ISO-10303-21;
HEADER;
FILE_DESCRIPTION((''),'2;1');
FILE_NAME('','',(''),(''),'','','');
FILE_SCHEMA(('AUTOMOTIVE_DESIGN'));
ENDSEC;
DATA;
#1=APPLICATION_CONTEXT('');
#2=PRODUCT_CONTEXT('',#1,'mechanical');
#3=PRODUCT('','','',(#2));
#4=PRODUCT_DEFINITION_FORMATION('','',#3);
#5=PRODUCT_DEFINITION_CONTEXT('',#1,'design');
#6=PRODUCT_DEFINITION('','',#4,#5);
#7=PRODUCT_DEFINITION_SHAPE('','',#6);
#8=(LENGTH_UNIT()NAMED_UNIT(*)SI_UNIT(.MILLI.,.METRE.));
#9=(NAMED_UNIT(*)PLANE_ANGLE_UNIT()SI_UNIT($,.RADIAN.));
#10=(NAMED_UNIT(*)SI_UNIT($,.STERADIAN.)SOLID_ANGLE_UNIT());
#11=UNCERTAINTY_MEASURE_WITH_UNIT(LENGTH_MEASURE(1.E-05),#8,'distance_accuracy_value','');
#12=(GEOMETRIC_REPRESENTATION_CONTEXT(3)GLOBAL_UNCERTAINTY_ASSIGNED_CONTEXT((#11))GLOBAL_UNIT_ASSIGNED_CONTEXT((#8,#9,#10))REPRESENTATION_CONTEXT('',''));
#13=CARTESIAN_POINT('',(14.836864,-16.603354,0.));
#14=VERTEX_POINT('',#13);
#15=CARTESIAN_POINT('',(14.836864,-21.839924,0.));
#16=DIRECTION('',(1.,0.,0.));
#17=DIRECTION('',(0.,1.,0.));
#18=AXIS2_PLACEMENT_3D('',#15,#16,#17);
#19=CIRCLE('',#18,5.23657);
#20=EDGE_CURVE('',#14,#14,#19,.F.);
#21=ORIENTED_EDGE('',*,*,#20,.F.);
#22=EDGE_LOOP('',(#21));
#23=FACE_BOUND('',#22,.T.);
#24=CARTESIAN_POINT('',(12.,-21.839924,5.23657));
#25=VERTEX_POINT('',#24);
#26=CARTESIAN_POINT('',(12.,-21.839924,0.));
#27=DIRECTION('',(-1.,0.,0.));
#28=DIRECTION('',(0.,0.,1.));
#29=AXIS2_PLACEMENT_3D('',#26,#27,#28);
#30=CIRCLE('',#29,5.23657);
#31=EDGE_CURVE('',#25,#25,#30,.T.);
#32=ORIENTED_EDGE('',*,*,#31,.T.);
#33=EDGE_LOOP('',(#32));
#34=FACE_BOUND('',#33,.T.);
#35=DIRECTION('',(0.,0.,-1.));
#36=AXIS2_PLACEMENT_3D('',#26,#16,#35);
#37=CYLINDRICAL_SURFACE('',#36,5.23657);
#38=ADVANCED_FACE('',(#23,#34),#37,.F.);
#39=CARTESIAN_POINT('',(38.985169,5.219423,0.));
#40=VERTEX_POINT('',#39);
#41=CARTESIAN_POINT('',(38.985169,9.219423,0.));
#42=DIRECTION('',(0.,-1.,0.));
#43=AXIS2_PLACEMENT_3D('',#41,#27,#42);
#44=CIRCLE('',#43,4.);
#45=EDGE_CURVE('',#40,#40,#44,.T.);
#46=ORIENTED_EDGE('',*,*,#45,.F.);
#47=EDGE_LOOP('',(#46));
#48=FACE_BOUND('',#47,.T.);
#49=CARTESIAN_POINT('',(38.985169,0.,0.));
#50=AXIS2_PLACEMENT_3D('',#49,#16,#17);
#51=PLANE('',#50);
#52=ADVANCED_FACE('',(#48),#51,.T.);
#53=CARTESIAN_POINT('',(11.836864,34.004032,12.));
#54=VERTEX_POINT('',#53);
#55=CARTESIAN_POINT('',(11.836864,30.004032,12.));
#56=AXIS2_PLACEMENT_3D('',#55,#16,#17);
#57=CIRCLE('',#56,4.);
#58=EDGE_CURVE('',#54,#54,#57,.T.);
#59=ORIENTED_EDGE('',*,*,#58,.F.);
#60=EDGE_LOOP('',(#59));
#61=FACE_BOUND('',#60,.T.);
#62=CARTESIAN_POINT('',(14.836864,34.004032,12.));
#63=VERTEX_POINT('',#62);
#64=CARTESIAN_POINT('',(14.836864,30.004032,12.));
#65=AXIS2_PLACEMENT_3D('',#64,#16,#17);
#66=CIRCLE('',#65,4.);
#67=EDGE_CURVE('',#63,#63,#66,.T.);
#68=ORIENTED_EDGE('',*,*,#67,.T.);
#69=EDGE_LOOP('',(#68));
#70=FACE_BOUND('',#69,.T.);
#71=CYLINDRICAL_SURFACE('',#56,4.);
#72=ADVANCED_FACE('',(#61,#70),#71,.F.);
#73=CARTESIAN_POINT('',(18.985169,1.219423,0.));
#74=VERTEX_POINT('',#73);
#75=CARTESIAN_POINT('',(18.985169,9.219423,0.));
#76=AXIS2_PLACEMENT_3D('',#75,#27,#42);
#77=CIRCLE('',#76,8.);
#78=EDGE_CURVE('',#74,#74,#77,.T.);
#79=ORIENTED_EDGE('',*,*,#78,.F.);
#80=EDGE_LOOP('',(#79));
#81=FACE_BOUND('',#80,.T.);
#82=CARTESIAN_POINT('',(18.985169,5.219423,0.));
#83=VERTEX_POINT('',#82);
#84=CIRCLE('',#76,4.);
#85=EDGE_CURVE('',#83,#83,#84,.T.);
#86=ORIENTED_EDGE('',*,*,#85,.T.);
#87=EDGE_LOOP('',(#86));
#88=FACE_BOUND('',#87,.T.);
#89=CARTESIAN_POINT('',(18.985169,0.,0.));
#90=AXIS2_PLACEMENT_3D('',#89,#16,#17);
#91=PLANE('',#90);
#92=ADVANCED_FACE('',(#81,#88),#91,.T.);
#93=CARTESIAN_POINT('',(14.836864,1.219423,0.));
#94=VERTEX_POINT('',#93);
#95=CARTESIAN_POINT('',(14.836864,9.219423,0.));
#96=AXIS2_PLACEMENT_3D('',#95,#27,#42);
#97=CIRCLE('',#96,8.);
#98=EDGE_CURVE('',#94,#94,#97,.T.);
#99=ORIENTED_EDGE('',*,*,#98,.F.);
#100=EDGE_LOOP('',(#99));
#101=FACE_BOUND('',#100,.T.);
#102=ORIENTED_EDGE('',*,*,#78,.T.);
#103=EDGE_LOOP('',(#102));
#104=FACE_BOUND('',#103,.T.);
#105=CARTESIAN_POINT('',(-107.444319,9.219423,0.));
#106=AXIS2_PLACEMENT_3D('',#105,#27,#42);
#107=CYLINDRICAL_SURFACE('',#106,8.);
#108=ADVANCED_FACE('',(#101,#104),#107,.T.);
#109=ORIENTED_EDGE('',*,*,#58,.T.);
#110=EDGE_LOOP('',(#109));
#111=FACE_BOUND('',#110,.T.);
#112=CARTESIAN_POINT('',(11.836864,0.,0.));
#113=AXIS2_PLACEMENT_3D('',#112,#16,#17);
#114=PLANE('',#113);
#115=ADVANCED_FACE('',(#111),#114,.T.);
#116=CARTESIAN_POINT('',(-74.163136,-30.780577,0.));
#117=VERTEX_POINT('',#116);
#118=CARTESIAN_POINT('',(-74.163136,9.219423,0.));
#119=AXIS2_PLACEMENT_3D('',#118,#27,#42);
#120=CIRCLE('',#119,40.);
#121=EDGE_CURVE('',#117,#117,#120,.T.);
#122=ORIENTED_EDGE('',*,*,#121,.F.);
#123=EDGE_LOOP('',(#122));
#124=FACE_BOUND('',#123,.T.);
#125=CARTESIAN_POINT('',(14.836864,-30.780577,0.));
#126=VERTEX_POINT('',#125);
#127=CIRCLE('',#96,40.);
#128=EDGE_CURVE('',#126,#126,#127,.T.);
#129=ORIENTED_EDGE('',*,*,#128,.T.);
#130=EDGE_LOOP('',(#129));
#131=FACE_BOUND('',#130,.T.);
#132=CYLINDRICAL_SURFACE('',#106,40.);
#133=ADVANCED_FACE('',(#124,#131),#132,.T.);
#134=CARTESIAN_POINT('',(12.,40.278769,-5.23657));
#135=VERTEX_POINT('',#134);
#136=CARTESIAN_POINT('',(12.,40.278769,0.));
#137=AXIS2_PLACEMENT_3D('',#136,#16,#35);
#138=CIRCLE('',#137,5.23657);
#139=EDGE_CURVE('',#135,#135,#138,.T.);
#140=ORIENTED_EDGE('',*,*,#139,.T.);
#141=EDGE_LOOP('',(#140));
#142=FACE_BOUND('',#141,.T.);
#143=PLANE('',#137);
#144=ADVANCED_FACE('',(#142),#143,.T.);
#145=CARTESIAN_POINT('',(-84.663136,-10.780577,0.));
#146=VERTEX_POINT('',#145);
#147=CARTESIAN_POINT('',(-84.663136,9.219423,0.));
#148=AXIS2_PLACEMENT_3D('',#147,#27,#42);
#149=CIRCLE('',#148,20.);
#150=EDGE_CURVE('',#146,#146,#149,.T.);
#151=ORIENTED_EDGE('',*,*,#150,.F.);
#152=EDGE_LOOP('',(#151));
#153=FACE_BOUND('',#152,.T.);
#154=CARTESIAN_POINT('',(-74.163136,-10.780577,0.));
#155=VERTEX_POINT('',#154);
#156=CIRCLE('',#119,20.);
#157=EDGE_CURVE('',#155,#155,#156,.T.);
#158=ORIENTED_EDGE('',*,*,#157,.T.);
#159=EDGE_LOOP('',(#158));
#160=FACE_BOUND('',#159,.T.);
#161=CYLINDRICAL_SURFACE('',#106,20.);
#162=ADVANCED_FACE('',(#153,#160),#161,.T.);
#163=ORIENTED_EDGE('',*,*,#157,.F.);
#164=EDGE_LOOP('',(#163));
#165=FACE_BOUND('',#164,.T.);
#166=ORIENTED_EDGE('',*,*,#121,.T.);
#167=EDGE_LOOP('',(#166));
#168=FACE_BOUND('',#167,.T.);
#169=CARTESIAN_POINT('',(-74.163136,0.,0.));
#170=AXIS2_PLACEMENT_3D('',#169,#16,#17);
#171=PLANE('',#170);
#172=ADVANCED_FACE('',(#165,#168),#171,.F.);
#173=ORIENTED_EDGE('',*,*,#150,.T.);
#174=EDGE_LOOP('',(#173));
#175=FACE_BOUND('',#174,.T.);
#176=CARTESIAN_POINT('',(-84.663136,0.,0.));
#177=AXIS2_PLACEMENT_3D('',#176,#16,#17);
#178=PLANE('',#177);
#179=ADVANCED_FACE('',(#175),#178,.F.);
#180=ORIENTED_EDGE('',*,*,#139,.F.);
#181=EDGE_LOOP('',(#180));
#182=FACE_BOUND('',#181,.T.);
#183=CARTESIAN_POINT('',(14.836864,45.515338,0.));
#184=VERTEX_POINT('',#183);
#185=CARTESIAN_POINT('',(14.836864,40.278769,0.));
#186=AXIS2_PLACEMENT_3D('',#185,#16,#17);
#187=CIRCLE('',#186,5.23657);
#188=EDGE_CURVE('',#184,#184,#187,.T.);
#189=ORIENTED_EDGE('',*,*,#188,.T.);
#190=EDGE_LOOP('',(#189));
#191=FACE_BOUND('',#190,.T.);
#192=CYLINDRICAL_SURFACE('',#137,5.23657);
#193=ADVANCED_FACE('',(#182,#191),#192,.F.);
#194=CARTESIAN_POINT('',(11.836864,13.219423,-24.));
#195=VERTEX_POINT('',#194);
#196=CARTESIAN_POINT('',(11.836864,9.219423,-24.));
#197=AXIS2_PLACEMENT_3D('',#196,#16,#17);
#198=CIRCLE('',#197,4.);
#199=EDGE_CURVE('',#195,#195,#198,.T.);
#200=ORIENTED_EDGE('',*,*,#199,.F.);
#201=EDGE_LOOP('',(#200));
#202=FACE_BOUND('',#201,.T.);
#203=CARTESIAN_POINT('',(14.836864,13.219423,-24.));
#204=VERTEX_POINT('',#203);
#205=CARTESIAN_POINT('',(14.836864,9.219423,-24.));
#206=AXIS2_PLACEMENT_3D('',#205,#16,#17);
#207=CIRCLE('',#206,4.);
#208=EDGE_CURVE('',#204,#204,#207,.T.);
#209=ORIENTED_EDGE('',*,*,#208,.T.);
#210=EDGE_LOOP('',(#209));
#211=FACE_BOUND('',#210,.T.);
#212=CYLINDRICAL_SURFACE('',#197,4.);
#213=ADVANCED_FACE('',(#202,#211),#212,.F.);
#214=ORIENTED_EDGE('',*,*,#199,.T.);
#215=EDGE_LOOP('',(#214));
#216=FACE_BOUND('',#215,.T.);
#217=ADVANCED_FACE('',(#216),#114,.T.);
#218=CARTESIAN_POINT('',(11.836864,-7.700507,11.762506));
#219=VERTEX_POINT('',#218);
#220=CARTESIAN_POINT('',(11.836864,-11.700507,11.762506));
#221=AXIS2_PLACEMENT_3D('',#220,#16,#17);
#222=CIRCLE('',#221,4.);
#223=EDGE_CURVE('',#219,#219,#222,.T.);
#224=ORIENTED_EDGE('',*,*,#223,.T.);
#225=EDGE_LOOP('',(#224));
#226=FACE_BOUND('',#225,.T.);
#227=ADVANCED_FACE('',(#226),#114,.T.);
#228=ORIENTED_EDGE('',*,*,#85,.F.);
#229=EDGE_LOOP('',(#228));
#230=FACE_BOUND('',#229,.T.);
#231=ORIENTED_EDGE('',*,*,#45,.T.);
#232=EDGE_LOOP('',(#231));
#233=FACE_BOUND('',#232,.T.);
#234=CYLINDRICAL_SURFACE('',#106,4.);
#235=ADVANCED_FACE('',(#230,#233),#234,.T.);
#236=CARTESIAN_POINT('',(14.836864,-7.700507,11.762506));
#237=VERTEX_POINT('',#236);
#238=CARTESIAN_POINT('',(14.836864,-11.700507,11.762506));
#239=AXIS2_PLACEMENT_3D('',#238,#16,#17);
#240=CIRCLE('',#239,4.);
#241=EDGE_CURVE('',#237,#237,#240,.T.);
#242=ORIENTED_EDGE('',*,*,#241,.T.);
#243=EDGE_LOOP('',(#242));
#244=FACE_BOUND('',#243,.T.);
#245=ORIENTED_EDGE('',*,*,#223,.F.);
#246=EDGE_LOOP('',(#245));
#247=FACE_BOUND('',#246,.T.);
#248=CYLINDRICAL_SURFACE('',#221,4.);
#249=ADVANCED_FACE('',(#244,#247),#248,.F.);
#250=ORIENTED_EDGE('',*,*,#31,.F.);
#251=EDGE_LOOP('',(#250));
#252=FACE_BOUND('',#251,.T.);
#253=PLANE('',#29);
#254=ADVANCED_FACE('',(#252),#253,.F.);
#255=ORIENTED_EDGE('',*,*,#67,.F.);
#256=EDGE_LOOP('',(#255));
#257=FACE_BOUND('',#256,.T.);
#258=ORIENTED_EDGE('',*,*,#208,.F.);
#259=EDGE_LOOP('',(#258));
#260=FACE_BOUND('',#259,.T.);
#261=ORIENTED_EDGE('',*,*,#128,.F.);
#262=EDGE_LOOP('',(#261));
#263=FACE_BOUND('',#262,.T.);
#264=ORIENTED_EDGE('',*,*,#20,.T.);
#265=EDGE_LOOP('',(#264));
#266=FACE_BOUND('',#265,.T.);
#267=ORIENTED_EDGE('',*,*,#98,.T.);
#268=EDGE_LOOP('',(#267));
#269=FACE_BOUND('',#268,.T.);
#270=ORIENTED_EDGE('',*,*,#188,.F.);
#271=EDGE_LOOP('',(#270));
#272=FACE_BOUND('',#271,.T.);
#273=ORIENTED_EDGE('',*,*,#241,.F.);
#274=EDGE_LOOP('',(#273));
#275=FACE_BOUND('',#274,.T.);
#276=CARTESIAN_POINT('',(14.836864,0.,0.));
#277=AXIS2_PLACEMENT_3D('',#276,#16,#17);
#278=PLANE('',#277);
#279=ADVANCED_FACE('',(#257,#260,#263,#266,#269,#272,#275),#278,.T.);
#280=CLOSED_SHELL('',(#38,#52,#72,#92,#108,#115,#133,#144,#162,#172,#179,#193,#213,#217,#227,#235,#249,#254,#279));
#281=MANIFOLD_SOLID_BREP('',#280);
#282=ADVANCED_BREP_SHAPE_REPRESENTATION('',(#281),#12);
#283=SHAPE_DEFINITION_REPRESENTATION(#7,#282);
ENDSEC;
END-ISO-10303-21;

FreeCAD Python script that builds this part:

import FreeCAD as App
import Part
import Sketcher
Q = App.Units.Quantity

doc = App.newDocument("Part")
params = doc.addObject("Spreadsheet::Sheet", "Params")
for row, (alias, value) in enumerate([
    ("sketch1_width", "20 mm"),
    ("sketch1_width2", "89 mm"),
    ("sketch1_height", "4 mm"),
    ("sketch1_width3", "10.5 mm"),
    ("revolution_angle", "360 deg"),
    ("pocket1_length", "3 mm"),
    ("sketch3_diameter", "8 mm"),
    ("pocket2_length", "3 mm"),
], start=1):
    params.set(f"A{row}", alias)
    params.set(f"B{row}", "=" + value)
    params.setAlias(f"B{row}", alias)

body = doc.addObject("PartDesign::Body", "Body")

# Sketch on XY plane
sketch1 = body.newObject("Sketcher::SketchObject", "Sketch")
sketch1.AttachmentSupport = (doc.getObject("XY_Plane"), [""])
sketch1.MapMode = "FlatFace"
sketch1.addGeometry(Part.LineSegment(App.Vector(-84.7, 29.2, 0), App.Vector(-84.7, 9.2, 0)), False)
sketch1.addGeometry(Part.LineSegment(App.Vector(-84.7, 9.2, 0), App.Vector(39, 9.2, 0)), False)
sketch1.addGeometry(Part.LineSegment(App.Vector(39, 9.2, 0), App.Vector(39, 13.2, 0)), False)
sketch1.addGeometry(Part.LineSegment(App.Vector(39, 13.2, 0), App.Vector(19, 13.2, 0)), False)
sketch1.addGeometry(Part.LineSegment(App.Vector(19, 13.2, 0), App.Vector(19, 17.2, 0)), False)
sketch1.addGeometry(Part.LineSegment(App.Vector(19, 17.2, 0), App.Vector(14.8, 17.2, 0)), False)
sketch1.addGeometry(Part.LineSegment(App.Vector(14.8, 17.2, 0), App.Vector(14.8, 49.2, 0)), False)
sketch1.addGeometry(Part.LineSegment(App.Vector(14.8, 49.2, 0), App.Vector(-74.2, 49.2, 0)), False)
sketch1.addGeometry(Part.LineSegment(App.Vector(-74.2, 49.2, 0), App.Vector(-74.2, 29.2, 0)), False)
sketch1.addGeometry(Part.LineSegment(App.Vector(-74.2, 29.2, 0), App.Vector(-84.7, 29.2, 0)), False)
sketch1.addGeometry(Part.LineSegment(App.Vector(-84.7, 9.2, 0), App.Vector(39, 9.2, 0)), True)  # axis
sketch1.addConstraint(Sketcher.Constraint("Coincident", 0, 2, 1, 1))
sketch1.addConstraint(Sketcher.Constraint("Coincident", 1, 2, 2, 1))
sketch1.addConstraint(Sketcher.Constraint("Coincident", 2, 2, 3, 1))
sketch1.addConstraint(Sketcher.Constraint("Coincident", 3, 2, 4, 1))
sketch1.addConstraint(Sketcher.Constraint("Coincident", 4, 2, 5, 1))
sketch1.addConstraint(Sketcher.Constraint("Coincident", 5, 2, 6, 1))
sketch1.addConstraint(Sketcher.Constraint("Coincident", 6, 2, 7, 1))
sketch1.addConstraint(Sketcher.Constraint("Coincident", 7, 2, 8, 1))
sketch1.addConstraint(Sketcher.Constraint("Coincident", 8, 2, 9, 1))
sketch1.addConstraint(Sketcher.Constraint("Coincident", 9, 2, 0, 1))
sketch1.addConstraint(Sketcher.Constraint("Vertical", 0))
sketch1.addConstraint(Sketcher.Constraint("Horizontal", 1))
sketch1.addConstraint(Sketcher.Constraint("Vertical", 2))
sketch1.addConstraint(Sketcher.Constraint("Horizontal", 3))
sketch1.addConstraint(Sketcher.Constraint("Vertical", 4))
sketch1.addConstraint(Sketcher.Constraint("Horizontal", 5))
sketch1.addConstraint(Sketcher.Constraint("Vertical", 6))
sketch1.addConstraint(Sketcher.Constraint("Horizontal", 7))
sketch1.addConstraint(Sketcher.Constraint("Vertical", 8))
sketch1.addConstraint(Sketcher.Constraint("Horizontal", 9))
sketch1.addConstraint(Sketcher.Constraint("Horizontal", 10))
sketch1.addConstraint(Sketcher.Constraint("Coincident", 10, 1, 0, 2))
sketch1.addConstraint(Sketcher.Constraint("Vertical", 2, 2, 10, 2))
sketch1.addConstraint(Sketcher.Constraint("Equal", 3, 0))
sketch1.addConstraint(Sketcher.Constraint("Equal", 2, 4))
sketch1.addConstraint(Sketcher.Constraint("Equal", 0, 8))
sketch1.addConstraint(Sketcher.Constraint("DistanceX", 3, 2, 3, 1, Q("20 mm")))
sketch1.addConstraint(Sketcher.Constraint("DistanceX", 7, 2, 7, 1, Q("89 mm")))
sketch1.addConstraint(Sketcher.Constraint("DistanceY", 2, 1, 2, 2, Q("4 mm")))
sketch1.addConstraint(Sketcher.Constraint("DistanceX", 9, 2, 9, 1, Q("10.5 mm")))
sketch1.addConstraint(Sketcher.Constraint("DistanceX", 1, 1, 1, 2, Q("123.648305 mm")))
sketch1.addConstraint(Sketcher.Constraint("DistanceX", -1, 1, 1, 2, Q("38.985169 mm")))
sketch1.addConstraint(Sketcher.Constraint("DistanceY", -1, 1, 0, 2, Q("9.219423 mm")))
sketch1.setExpression("Constraints[26]", "Params.sketch1_width")
sketch1.setExpression("Constraints[27]", "Params.sketch1_width2")
sketch1.setExpression("Constraints[28]", "Params.sketch1_height")
sketch1.setExpression("Constraints[29]", "Params.sketch1_width3")
revolution = body.newObject("PartDesign::Revolution", "Revolution")
revolution.Profile = sketch1
revolution.ReferenceAxis = (sketch1, ["Axis0"])
revolution.setExpression("Angle", "Params.revolution_angle")

# Sketch on YZ plane
sketch2 = body.newObject("Sketcher::SketchObject", "Sketch001")
sketch2.AttachmentSupport = (doc.getObject("YZ_Plane"), [""])
sketch2.MapMode = "FlatFace"
sketch2.AttachmentOffset = App.Placement(App.Vector(0, 0, 15), App.Rotation())
sketch2.addGeometry(Part.Circle(App.Vector(40, 0, 0), App.Vector(0, 0, 1), 5), False)
sketch2.addGeometry(Part.Circle(App.Vector(-22, 0, 0), App.Vector(0, 0, 1), 5), False)
sketch2.addConstraint(Sketcher.Constraint("Equal", 0, 1))
sketch2.addConstraint(Sketcher.Constraint("PointOnObject", 0, 3, -1))
sketch2.addConstraint(Sketcher.Constraint("PointOnObject", 1, 3, -1))
sketch2.addConstraint(Sketcher.Constraint("Diameter", 0, Q("10.473139 mm")))
sketch2.addConstraint(Sketcher.Constraint("DistanceX", -1, 1, 0, 3, Q("40.278769 mm")))
sketch2.addConstraint(Sketcher.Constraint("DistanceX", 1, 3, -1, 1, Q("21.839924 mm")))
pocket1 = body.newObject("PartDesign::Pocket", "Pocket")
pocket1.Profile = sketch2
pocket1.setExpression("Length", "Params.pocket1_length")

# Sketch on YZ plane
sketch3 = body.newObject("Sketcher::SketchObject", "Sketch002")
sketch3.AttachmentSupport = (doc.getObject("YZ_Plane"), [""])
sketch3.MapMode = "FlatFace"
sketch3.AttachmentOffset = App.Placement(App.Vector(0, 0, 14.836864), App.Rotation())
sketch3.addGeometry(Part.Circle(App.Vector(-11.7, 11.8, 0), App.Vector(0, 0, 1), 4), False)
sketch3.addGeometry(Part.Circle(App.Vector(30, 12, 0), App.Vector(0, 0, 1), 4), False)
sketch3.addGeometry(Part.Circle(App.Vector(9.2, -24, 0), App.Vector(0, 0, 1), 4), False)
sketch3.addConstraint(Sketcher.Constraint("Equal", 0, 1))
sketch3.addConstraint(Sketcher.Constraint("Equal", 1, 2))
sketch3.addConstraint(Sketcher.Constraint("Diameter", 0, Q("8 mm")))
sketch3.addConstraint(Sketcher.Constraint("DistanceY", -1, 1, 1, 3, Q("12 mm")))
sketch3.addConstraint(Sketcher.Constraint("DistanceY", 2, 3, -1, 1, Q("24 mm")))
sketch3.addConstraint(Sketcher.Constraint("DistanceX", 0, 3, 1, 3, Q("41.70454 mm")))
sketch3.addConstraint(Sketcher.Constraint("DistanceX", 0, 3, 2, 3, Q("20.91993 mm")))
sketch3.addConstraint(Sketcher.Constraint("DistanceX", 0, 3, -1, 1, Q("11.700507 mm")))
sketch3.addConstraint(Sketcher.Constraint("DistanceY", -1, 1, 0, 3, Q("11.762506 mm")))
sketch3.setExpression("Constraints[2]", "Params.sketch3_diameter")
pocket2 = body.newObject("PartDesign::Pocket", "Pocket001")
pocket2.Profile = sketch3
pocket2.setExpression("Length", "Params.pocket2_length")

doc.recompute()
